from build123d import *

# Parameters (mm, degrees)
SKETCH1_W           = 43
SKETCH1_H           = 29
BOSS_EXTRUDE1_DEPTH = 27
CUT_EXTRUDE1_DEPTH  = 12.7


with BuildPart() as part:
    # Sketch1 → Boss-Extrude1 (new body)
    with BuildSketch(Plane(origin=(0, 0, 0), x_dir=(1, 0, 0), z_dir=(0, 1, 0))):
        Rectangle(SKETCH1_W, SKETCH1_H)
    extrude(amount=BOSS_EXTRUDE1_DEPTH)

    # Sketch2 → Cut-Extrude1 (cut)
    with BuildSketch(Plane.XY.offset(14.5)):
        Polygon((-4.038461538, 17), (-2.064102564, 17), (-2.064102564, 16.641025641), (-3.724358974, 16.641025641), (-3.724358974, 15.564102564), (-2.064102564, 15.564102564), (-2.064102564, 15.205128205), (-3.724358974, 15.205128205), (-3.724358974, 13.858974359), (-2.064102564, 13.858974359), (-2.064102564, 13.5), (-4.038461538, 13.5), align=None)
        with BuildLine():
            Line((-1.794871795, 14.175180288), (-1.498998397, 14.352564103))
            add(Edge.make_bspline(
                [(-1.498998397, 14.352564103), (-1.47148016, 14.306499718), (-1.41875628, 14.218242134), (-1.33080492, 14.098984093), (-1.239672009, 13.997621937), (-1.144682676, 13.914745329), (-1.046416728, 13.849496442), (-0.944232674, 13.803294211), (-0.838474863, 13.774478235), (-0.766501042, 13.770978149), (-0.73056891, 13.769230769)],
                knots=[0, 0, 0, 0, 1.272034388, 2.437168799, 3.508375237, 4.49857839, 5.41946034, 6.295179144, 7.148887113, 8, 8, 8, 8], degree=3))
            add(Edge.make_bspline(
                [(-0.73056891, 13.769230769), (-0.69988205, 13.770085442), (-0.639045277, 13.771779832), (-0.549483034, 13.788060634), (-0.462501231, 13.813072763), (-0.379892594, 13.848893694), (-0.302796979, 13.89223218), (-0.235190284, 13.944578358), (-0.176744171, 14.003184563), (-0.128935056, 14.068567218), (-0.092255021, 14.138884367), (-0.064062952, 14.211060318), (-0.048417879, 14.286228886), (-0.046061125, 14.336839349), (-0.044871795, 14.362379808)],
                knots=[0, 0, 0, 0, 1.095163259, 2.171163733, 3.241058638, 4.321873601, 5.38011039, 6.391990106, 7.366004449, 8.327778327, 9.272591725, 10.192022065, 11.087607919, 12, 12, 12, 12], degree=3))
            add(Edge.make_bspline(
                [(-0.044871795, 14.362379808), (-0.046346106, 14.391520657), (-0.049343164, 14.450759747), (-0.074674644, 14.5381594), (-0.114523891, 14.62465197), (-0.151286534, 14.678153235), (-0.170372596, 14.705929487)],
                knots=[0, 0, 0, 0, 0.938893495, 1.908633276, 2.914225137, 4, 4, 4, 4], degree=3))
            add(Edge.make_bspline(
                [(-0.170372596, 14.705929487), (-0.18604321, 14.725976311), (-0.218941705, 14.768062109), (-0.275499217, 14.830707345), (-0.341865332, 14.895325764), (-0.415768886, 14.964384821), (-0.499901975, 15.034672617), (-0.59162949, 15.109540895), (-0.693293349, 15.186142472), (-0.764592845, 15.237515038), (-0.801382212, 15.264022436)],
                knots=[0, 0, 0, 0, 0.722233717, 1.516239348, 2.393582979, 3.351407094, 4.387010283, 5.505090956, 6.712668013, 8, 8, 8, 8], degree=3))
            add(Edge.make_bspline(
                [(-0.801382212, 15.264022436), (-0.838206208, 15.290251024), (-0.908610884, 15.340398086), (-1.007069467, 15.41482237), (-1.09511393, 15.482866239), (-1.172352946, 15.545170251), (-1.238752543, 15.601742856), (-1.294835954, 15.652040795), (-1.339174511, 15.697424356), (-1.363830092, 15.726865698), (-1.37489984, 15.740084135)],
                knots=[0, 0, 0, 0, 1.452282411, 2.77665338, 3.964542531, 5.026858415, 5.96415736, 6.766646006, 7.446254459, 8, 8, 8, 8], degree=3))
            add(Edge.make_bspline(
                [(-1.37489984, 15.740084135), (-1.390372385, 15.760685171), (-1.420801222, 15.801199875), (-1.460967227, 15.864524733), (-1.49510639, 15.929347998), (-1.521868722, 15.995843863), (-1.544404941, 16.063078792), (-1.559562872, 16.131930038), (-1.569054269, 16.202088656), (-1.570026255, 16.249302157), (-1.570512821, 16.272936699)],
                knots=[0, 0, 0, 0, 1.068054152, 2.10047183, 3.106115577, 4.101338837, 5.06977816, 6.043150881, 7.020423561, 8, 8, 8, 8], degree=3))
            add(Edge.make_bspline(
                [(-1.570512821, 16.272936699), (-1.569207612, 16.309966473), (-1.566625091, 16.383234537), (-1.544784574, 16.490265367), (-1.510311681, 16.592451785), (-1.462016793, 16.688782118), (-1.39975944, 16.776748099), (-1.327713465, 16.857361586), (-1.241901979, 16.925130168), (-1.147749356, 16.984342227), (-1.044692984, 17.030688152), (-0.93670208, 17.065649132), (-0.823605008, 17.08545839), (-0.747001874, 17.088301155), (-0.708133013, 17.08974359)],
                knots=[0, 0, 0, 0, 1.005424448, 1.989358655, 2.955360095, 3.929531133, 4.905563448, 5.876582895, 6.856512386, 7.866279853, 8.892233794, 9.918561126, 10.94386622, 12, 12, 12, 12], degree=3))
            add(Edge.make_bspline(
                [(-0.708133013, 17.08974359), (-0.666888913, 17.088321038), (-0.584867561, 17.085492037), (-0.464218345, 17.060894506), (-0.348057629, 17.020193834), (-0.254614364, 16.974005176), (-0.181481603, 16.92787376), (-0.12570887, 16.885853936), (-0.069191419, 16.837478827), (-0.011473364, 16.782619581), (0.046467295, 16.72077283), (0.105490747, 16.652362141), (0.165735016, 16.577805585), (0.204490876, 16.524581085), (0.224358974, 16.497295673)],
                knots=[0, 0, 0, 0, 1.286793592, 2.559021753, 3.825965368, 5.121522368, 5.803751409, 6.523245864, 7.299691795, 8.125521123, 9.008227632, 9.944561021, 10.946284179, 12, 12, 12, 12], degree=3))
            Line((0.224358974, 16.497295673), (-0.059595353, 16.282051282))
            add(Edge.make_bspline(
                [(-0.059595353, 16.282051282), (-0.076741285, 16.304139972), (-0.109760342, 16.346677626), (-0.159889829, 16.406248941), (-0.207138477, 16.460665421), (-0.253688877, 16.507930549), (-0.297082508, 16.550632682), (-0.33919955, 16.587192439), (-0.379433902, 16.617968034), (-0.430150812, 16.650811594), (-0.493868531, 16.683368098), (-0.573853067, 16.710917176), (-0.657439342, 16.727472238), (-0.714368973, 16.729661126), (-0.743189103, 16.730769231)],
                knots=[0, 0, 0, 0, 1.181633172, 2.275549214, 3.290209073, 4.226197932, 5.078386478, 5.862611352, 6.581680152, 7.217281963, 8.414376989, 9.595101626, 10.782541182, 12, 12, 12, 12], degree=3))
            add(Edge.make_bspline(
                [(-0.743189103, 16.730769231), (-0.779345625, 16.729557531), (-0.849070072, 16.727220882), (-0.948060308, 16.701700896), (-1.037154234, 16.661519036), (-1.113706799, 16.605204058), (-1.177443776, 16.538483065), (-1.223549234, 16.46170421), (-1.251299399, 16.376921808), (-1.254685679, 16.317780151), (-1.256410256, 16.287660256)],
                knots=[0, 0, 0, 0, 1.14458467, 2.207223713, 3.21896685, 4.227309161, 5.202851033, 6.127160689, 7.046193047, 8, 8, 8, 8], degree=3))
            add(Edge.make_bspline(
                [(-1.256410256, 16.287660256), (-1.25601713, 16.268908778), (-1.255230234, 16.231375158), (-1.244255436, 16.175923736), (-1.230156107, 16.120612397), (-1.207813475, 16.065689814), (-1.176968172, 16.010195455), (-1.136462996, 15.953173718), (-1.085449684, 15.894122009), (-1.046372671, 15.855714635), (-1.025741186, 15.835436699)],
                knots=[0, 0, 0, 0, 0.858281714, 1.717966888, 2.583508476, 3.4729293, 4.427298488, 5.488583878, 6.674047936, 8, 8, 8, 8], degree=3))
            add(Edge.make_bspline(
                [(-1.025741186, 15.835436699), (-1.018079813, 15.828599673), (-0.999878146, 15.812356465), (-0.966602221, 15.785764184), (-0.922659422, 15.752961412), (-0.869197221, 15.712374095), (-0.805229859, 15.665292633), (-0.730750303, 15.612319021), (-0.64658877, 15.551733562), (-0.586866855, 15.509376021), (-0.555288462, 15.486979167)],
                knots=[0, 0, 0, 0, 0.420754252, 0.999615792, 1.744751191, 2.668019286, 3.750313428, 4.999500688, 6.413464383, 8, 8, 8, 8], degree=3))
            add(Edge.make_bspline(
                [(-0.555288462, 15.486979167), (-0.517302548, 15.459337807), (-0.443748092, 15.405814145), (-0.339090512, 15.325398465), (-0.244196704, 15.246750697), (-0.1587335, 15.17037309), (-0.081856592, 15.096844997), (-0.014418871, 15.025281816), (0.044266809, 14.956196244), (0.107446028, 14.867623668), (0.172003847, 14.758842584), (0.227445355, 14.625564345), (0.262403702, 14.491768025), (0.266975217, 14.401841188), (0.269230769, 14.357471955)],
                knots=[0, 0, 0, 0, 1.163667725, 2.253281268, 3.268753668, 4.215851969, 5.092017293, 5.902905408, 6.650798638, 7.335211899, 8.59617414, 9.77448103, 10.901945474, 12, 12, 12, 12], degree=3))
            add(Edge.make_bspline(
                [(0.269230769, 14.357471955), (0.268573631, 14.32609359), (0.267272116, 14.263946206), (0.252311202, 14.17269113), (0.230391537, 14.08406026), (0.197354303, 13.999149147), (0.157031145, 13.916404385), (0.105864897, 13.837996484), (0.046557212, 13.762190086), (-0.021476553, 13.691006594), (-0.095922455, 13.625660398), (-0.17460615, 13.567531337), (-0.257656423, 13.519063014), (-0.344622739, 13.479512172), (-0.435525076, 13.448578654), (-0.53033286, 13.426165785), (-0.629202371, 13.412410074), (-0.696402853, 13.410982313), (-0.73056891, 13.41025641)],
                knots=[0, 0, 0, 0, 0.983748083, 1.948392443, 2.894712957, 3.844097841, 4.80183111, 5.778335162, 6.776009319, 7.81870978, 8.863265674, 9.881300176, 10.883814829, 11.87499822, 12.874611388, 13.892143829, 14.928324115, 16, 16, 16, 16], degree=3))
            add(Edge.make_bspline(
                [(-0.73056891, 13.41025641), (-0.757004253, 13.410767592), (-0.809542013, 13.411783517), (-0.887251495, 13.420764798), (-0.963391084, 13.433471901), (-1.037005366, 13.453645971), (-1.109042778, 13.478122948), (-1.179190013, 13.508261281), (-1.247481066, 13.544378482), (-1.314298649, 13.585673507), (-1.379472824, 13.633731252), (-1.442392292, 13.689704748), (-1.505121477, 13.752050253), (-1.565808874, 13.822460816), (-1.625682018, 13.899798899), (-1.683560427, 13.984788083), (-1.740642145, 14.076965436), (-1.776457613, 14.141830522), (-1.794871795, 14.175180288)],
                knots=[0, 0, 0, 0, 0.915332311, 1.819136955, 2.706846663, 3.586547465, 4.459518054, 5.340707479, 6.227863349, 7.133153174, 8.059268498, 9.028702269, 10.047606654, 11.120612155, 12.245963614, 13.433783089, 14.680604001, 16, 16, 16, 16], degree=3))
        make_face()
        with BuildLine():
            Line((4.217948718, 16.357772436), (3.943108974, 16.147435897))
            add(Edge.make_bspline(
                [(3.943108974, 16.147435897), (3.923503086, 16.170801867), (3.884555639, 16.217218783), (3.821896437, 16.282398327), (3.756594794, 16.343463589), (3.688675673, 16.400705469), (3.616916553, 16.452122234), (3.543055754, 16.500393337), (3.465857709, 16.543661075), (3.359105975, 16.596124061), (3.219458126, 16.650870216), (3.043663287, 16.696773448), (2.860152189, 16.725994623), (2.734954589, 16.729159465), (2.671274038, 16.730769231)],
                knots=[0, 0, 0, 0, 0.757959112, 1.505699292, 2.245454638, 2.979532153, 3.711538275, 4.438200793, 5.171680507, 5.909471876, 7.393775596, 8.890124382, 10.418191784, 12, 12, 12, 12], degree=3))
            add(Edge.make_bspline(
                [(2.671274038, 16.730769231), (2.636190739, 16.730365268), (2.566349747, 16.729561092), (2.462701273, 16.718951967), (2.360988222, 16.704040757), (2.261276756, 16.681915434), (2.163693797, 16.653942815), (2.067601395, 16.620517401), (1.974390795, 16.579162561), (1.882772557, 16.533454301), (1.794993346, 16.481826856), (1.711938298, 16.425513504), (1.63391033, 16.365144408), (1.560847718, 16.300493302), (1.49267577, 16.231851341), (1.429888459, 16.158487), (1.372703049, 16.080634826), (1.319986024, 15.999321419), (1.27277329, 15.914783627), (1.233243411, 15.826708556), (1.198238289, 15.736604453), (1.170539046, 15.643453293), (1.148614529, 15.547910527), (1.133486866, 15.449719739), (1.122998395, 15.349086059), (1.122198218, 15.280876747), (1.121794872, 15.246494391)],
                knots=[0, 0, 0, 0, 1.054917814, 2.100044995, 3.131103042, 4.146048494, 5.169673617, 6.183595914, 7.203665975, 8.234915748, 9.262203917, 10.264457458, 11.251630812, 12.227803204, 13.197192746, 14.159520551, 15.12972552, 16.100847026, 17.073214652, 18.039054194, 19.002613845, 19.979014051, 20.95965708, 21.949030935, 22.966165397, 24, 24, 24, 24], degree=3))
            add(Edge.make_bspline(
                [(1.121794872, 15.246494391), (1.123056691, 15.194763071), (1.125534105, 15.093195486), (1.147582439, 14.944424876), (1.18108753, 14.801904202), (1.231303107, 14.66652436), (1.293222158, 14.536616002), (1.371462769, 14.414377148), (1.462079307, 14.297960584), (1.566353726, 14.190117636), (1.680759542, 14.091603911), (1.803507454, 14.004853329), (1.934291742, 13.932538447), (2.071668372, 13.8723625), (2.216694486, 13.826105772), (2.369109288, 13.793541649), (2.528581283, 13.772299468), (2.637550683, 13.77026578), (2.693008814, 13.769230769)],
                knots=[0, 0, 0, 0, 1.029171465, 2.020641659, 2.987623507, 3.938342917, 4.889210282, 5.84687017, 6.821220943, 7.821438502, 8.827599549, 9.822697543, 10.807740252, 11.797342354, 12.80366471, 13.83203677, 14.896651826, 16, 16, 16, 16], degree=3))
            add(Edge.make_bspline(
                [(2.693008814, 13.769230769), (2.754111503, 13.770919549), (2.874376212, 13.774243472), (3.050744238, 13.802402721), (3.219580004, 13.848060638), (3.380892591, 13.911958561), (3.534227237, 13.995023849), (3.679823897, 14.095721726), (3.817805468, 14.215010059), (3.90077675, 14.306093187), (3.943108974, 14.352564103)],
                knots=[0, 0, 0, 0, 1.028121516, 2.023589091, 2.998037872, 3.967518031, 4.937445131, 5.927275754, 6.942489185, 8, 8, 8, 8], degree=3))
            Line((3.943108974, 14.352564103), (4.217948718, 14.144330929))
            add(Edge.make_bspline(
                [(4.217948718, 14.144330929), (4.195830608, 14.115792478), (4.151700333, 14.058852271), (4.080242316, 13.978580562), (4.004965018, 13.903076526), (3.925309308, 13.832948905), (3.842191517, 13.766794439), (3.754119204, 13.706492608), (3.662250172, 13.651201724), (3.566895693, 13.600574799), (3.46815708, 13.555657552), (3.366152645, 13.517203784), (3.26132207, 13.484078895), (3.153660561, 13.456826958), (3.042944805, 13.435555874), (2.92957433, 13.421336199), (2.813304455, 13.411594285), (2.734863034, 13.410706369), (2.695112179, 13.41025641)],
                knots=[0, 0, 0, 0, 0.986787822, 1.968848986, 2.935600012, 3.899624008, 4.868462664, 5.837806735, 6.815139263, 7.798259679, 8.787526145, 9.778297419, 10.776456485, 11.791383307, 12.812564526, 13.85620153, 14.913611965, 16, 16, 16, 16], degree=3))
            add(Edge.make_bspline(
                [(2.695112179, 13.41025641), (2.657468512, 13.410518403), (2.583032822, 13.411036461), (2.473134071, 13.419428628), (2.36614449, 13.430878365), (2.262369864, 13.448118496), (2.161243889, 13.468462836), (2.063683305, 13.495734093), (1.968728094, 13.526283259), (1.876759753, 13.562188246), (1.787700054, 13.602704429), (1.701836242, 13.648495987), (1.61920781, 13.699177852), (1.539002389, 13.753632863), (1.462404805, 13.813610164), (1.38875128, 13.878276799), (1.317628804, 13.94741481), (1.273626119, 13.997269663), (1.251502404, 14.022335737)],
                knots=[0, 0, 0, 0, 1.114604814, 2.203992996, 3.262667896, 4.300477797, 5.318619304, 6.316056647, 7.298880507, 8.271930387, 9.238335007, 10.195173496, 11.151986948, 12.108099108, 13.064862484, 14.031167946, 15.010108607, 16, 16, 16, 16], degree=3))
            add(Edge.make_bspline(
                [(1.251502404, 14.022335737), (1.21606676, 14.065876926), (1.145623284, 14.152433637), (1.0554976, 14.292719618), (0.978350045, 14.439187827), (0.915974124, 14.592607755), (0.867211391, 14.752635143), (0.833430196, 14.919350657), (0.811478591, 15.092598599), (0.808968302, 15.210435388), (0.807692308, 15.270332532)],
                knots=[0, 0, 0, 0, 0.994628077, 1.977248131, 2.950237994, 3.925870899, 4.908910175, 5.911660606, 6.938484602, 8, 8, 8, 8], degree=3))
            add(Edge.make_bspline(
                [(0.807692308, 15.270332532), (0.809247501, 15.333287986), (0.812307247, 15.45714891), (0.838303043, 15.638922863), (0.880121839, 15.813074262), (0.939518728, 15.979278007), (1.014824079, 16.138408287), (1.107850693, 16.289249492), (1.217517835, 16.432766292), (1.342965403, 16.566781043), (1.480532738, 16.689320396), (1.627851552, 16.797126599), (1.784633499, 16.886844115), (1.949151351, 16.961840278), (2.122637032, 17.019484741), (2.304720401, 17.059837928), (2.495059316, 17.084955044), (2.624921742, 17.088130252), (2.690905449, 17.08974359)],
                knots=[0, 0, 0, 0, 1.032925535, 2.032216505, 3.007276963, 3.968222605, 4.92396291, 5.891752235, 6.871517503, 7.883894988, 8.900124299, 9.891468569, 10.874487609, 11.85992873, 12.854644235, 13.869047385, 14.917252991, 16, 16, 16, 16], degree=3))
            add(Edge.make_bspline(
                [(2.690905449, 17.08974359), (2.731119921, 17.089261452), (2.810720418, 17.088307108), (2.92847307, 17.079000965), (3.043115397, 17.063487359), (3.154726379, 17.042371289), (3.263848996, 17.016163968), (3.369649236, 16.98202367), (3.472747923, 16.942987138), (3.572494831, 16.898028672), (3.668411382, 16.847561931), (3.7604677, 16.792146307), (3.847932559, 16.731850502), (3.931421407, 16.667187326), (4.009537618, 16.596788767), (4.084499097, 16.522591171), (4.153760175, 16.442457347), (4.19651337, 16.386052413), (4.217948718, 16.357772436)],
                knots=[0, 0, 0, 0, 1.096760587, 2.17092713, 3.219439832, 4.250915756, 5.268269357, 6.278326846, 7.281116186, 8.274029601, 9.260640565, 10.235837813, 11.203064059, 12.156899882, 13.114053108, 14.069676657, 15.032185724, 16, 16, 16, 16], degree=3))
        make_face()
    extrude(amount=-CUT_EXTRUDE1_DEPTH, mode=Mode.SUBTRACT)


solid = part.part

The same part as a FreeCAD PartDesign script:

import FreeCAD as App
import Part
import Sketcher
from FreeCAD import Vector
Q = App.Units.Quantity


def add_polygon(sketch, points):
    """Adds a closed chain of lines whose ends are joined by coincident constraints."""
    first, n = sketch.GeometryCount, len(points)
    for a, b in zip(points, points[1:] + points[:1]):
        sketch.addGeometry(Part.LineSegment(App.Vector(*a, 0), App.Vector(*b, 0)), False)
    for i in range(n):
        sketch.addConstraint(Sketcher.Constraint("Coincident", first + i, 2, first + (i + 1) % n, 1))

doc = App.newDocument("Part")
body = doc.addObject("PartDesign::Body", "Body")

# Sketch on XZ plane
sketch1 = body.newObject("Sketcher::SketchObject", "Sketch")
sketch1.AttachmentSupport = (doc.getObject("XZ_Plane"), [""])
sketch1.MapMode = "FlatFace"
add_polygon(sketch1, [(-21.5, -14.5), (-21.5, 14.5), (21.5, 14.5), (21.5, -14.5)])  # lines 0-3
sketch1.addConstraint(Sketcher.Constraint("Vertical", 0))
sketch1.addConstraint(Sketcher.Constraint("Horizontal", 1))
sketch1.addConstraint(Sketcher.Constraint("Vertical", 2))
sketch1.addConstraint(Sketcher.Constraint("Horizontal", 3))
sketch1.addConstraint(Sketcher.Constraint("Symmetric", 0, 2, 2, 2, -1, 1))
sketch1.addConstraint(Sketcher.Constraint("DistanceX", 1, 1, 1, 2, Q("43 mm")))
sketch1.addConstraint(Sketcher.Constraint("DistanceY", 0, 1, 0, 2, Q("29 mm")))
pad1 = body.newObject("PartDesign::Pad", "Pad")
pad1.Profile = sketch1
pad1.Length = 27
pad1.Reversed = True

# Sketch on XY plane
sketch2 = body.newObject("Sketcher::SketchObject", "Sketch001")
sketch2.AttachmentSupport = (doc.getObject("XY_Plane"), [""])
sketch2.MapMode = "FlatFace"
sketch2.AttachmentOffset = App.Placement(Vector(0, 0, 14.5), App.Rotation())
add_polygon(sketch2, [(-2.064103, 17), (-4.038462, 17), (-4.038462, 13.5), (-2.064103, 13.5), (-2.064103, 13.858974), (-3.724359, 13.858974), (-3.724359, 15.205128), (-2.064103, 15.205128), (-2.064103, 15.564103), (-3.724359, 15.564103), (-3.724359, 16.641026), (-2.064103, 16.641026)])  # lines 0-11
sketch2.addGeometry(Part.LineSegment(Vector(-1.498998, 14.352564, 0), Vector(-1.794872, 14.17518, 0)), False)  # 12
sketch2.addGeometry(Part.BSplineCurve([Vector(-0.730569, 13.410256, 0), Vector(-0.757004, 13.410768, 0), Vector(-0.809542, 13.411784, 0), Vector(-0.887251, 13.420765, 0), Vector(-0.963391, 13.433472, 0), Vector(-1.037005, 13.453646, 0), Vector(-1.109043, 13.478123, 0), Vector(-1.17919, 13.508261, 0), Vector(-1.247481, 13.544378, 0), Vector(-1.314299, 13.585674, 0), Vector(-1.379473, 13.633731, 0), Vector(-1.442392, 13.689705, 0), Vector(-1.505121, 13.75205, 0), Vector(-1.565809, 13.822461, 0), Vector(-1.625682, 13.899799, 0), Vector(-1.68356, 13.984788, 0), Vector(-1.740642, 14.076965, 0), Vector(-1.776458, 14.141831, 0), Vector(-1.794872, 14.17518, 0)], [4, 1, 1, 1, 1, 1, 1, 1, 1, 1, 1, 1, 1, 1, 1, 1, 4], [0, 0.915332311, 1.819136955, 2.706846663, 3.586547465, 4.459518054, 5.340707479, 6.227863349, 7.133153174, 8.059268498, 9.028702269, 10.047606654, 11.120612155, 12.245963614, 13.433783089, 14.680604001, 16], False, 3, [1, 1, 1, 1, 1, 1, 1, 1, 1, 1, 1, 1, 1, 1, 1, 1, 1, 1, 1], False), False)  # 13
sketch2.addGeometry(Part.BSplineCurve([Vector(0.269231, 14.357472, 0), Vector(0.268574, 14.326094, 0), Vector(0.267272, 14.263946, 0), Vector(0.252311, 14.172691, 0), Vector(0.230392, 14.08406, 0), Vector(0.197354, 13.999149, 0), Vector(0.157031, 13.916404, 0), Vector(0.105865, 13.837996, 0), Vector(0.046557, 13.76219, 0), Vector(-0.021477, 13.691007, 0), Vector(-0.095922, 13.62566, 0), Vector(-0.174606, 13.567531, 0), Vector(-0.257656, 13.519063, 0), Vector(-0.344623, 13.479512, 0), Vector(-0.435525, 13.448579, 0), Vector(-0.530333, 13.426166, 0), Vector(-0.629202, 13.41241, 0), Vector(-0.696403, 13.410982, 0), Vector(-0.730569, 13.410256, 0)], [4, 1, 1, 1, 1, 1, 1, 1, 1, 1, 1, 1, 1, 1, 1, 1, 4], [0, 0.983748083, 1.948392443, 2.894712957, 3.844097841, 4.80183111, 5.778335162, 6.776009319, 7.81870978, 8.863265674, 9.881300176, 10.883814829, 11.87499822, 12.874611388, 13.892143829, 14.928324115, 16], False, 3, [1, 1, 1, 1, 1, 1, 1, 1, 1, 1, 1, 1, 1, 1, 1, 1, 1, 1, 1], False), False)  # 14
sketch2.addGeometry(Part.BSplineCurve([Vector(-0.555288, 15.486979, 0), Vector(-0.517303, 15.459338, 0), Vector(-0.443748, 15.405814, 0), Vector(-0.339091, 15.325398, 0), Vector(-0.244197, 15.246751, 0), Vector(-0.158733, 15.170373, 0), Vector(-0.081857, 15.096845, 0), Vector(-0.014419, 15.025282, 0), Vector(0.044267, 14.956196, 0), Vector(0.107446, 14.867624, 0), Vector(0.172004, 14.758843, 0), Vector(0.227445, 14.625564, 0), Vector(0.262404, 14.491768, 0), Vector(0.266975, 14.401841, 0), Vector(0.269231, 14.357472, 0)], [4, 1, 1, 1, 1, 1, 1, 1, 1, 1, 1, 1, 4], [0, 1.163667725, 2.253281268, 3.268753668, 4.215851969, 5.092017293, 5.902905408, 6.650798638, 7.335211899, 8.59617414, 9.77448103, 10.901945474, 12], False, 3, [1, 1, 1, 1, 1, 1, 1, 1, 1, 1, 1, 1, 1, 1, 1], False), False)  # 15
sketch2.addGeometry(Part.BSplineCurve([Vector(-1.025741, 15.835437, 0), Vector(-1.01808, 15.8286, 0), Vector(-0.999878, 15.812356, 0), Vector(-0.966602, 15.785764, 0), Vector(-0.922659, 15.752961, 0), Vector(-0.869197, 15.712374, 0), Vector(-0.80523, 15.665293, 0), Vector(-0.73075, 15.612319, 0), Vector(-0.646589, 15.551734, 0), Vector(-0.586867, 15.509376, 0), Vector(-0.555288, 15.486979, 0)], [4, 1, 1, 1, 1, 1, 1, 1, 4], [0, 0.420754252, 0.999615792, 1.744751191, 2.668019286, 3.750313428, 4.999500688, 6.413464383, 8], False, 3, [1, 1, 1, 1, 1, 1, 1, 1, 1, 1, 1], False), False)  # 16
sketch2.addGeometry(Part.BSplineCurve([Vector(-1.25641, 16.28766, 0), Vector(-1.256017, 16.268909, 0), Vector(-1.25523, 16.231375, 0), Vector(-1.244255, 16.175924, 0), Vector(-1.230156, 16.120612, 0), Vector(-1.207813, 16.06569, 0), Vector(-1.176968, 16.010195, 0), Vector(-1.136463, 15.953174, 0), Vector(-1.08545, 15.894122, 0), Vector(-1.046373, 15.855715, 0), Vector(-1.025741, 15.835437, 0)], [4, 1, 1, 1, 1, 1, 1, 1, 4], [0, 0.858281714, 1.717966888, 2.583508476, 3.4729293, 4.427298488, 5.488583878, 6.674047936, 8], False, 3, [1, 1, 1, 1, 1, 1, 1, 1, 1, 1, 1], False), False)  # 17
sketch2.addGeometry(Part.BSplineCurve([Vector(-0.743189, 16.730769, 0), Vector(-0.779346, 16.729558, 0), Vector(-0.84907, 16.727221, 0), Vector(-0.94806, 16.701701, 0), Vector(-1.037154, 16.661519, 0), Vector(-1.113707, 16.605204, 0), Vector(-1.177444, 16.538483, 0), Vector(-1.223549, 16.461704, 0), Vector(-1.251299, 16.376922, 0), Vector(-1.254686, 16.31778, 0), Vector(-1.25641, 16.28766, 0)], [4, 1, 1, 1, 1, 1, 1, 1, 4], [0, 1.14458467, 2.207223713, 3.21896685, 4.227309161, 5.202851033, 6.127160689, 7.046193047, 8], False, 3, [1, 1, 1, 1, 1, 1, 1, 1, 1, 1, 1], False), False)  # 18
sketch2.addGeometry(Part.BSplineCurve([Vector(-0.059595, 16.282051, 0), Vector(-0.076741, 16.30414, 0), Vector(-0.10976, 16.346678, 0), Vector(-0.15989, 16.406249, 0), Vector(-0.207138, 16.460665, 0), Vector(-0.253689, 16.507931, 0), Vector(-0.297083, 16.550633, 0), Vector(-0.3392, 16.587192, 0), Vector(-0.379434, 16.617968, 0), Vector(-0.430151, 16.650812, 0), Vector(-0.493869, 16.683368, 0), Vector(-0.573853, 16.710917, 0), Vector(-0.657439, 16.727472, 0), Vector(-0.714369, 16.729661, 0), Vector(-0.743189, 16.730769, 0)], [4, 1, 1, 1, 1, 1, 1, 1, 1, 1, 1, 1, 4], [0, 1.181633172, 2.275549214, 3.290209073, 4.226197932, 5.078386478, 5.862611352, 6.581680152, 7.217281963, 8.414376989, 9.595101626, 10.782541182, 12], False, 3, [1, 1, 1, 1, 1, 1, 1, 1, 1, 1, 1, 1, 1, 1, 1], False), False)  # 19
sketch2.addGeometry(Part.LineSegment(Vector(-0.059595, 16.282051, 0), Vector(0.224359, 16.497296, 0)), False)  # 20
sketch2.addGeometry(Part.BSplineCurve([Vector(-0.708133, 17.089744, 0), Vector(-0.666889, 17.088321, 0), Vector(-0.584868, 17.085492, 0), Vector(-0.464218, 17.060895, 0), Vector(-0.348058, 17.020194, 0), Vector(-0.254614, 16.974005, 0), Vector(-0.181482, 16.927874, 0), Vector(-0.125709, 16.885854, 0), Vector(-0.069191, 16.837479, 0), Vector(-0.011473, 16.78262, 0), Vector(0.046467, 16.720773, 0), Vector(0.105491, 16.652362, 0), Vector(0.165735, 16.577806, 0), Vector(0.204491, 16.524581, 0), Vector(0.224359, 16.497296, 0)], [4, 1, 1, 1, 1, 1, 1, 1, 1, 1, 1, 1, 4], [0, 1.286793592, 2.559021753, 3.825965368, 5.121522368, 5.803751409, 6.523245864, 7.299691795, 8.125521123, 9.008227632, 9.944561021, 10.946284179, 12], False, 3, [1, 1, 1, 1, 1, 1, 1, 1, 1, 1, 1, 1, 1, 1, 1], False), False)  # 21
sketch2.addGeometry(Part.BSplineCurve([Vector(-1.570513, 16.272937, 0), Vector(-1.569208, 16.309966, 0), Vector(-1.566625, 16.383235, 0), Vector(-1.544785, 16.490265, 0), Vector(-1.510312, 16.592452, 0), Vector(-1.462017, 16.688782, 0), Vector(-1.399759, 16.776748, 0), Vector(-1.327713, 16.857362, 0), Vector(-1.241902, 16.92513, 0), Vector(-1.147749, 16.984342, 0), Vector(-1.044693, 17.030688, 0), Vector(-0.936702, 17.065649, 0), Vector(-0.823605, 17.085458, 0), Vector(-0.747002, 17.088301, 0), Vector(-0.708133, 17.089744, 0)], [4, 1, 1, 1, 1, 1, 1, 1, 1, 1, 1, 1, 4], [0, 1.005424448, 1.989358655, 2.955360095, 3.929531133, 4.905563448, 5.876582895, 6.856512386, 7.866279853, 8.892233794, 9.918561126, 10.94386622, 12], False, 3, [1, 1, 1, 1, 1, 1, 1, 1, 1, 1, 1, 1, 1, 1, 1], False), False)  # 22
sketch2.addGeometry(Part.BSplineCurve([Vector(-1.3749, 15.740084, 0), Vector(-1.390372, 15.760685, 0), Vector(-1.420801, 15.8012, 0), Vector(-1.460967, 15.864525, 0), Vector(-1.495106, 15.929348, 0), Vector(-1.521869, 15.995844, 0), Vector(-1.544405, 16.063079, 0), Vector(-1.559563, 16.13193, 0), Vector(-1.569054, 16.202089, 0), Vector(-1.570026, 16.249302, 0), Vector(-1.570513, 16.272937, 0)], [4, 1, 1, 1, 1, 1, 1, 1, 4], [0, 1.068054152, 2.10047183, 3.106115577, 4.101338837, 5.06977816, 6.043150881, 7.020423561, 8], False, 3, [1, 1, 1, 1, 1, 1, 1, 1, 1, 1, 1], False), False)  # 23
sketch2.addGeometry(Part.BSplineCurve([Vector(-0.801382, 15.264022, 0), Vector(-0.838206, 15.290251, 0), Vector(-0.908611, 15.340398, 0), Vector(-1.007069, 15.414822, 0), Vector(-1.095114, 15.482866, 0), Vector(-1.172353, 15.54517, 0), Vector(-1.238753, 15.601743, 0), Vector(-1.294836, 15.652041, 0), Vector(-1.339175, 15.697424, 0), Vector(-1.36383, 15.726866, 0), Vector(-1.3749, 15.740084, 0)], [4, 1, 1, 1, 1, 1, 1, 1, 4], [0, 1.452282411, 2.77665338, 3.964542531, 5.026858415, 5.96415736, 6.766646006, 7.446254459, 8], False, 3, [1, 1, 1, 1, 1, 1, 1, 1, 1, 1, 1], False), False)  # 24
sketch2.addGeometry(Part.BSplineCurve([Vector(-0.170373, 14.705929, 0), Vector(-0.186043, 14.725976, 0), Vector(-0.218942, 14.768062, 0), Vector(-0.275499, 14.830707, 0), Vector(-0.341865, 14.895326, 0), Vector(-0.415769, 14.964385, 0), Vector(-0.499902, 15.034673, 0), Vector(-0.591629, 15.109541, 0), Vector(-0.693293, 15.186142, 0), Vector(-0.764593, 15.237515, 0), Vector(-0.801382, 15.264022, 0)], [4, 1, 1, 1, 1, 1, 1, 1, 4], [0, 0.722233717, 1.516239348, 2.393582979, 3.351407094, 4.387010283, 5.505090956, 6.712668013, 8], False, 3, [1, 1, 1, 1, 1, 1, 1, 1, 1, 1, 1], False), False)  # 25
sketch2.addGeometry(Part.BSplineCurve([Vector(-0.044872, 14.36238, 0), Vector(-0.046346, 14.391521, 0), Vector(-0.049343, 14.45076, 0), Vector(-0.074675, 14.538159, 0), Vector(-0.114524, 14.624652, 0), Vector(-0.151287, 14.678153, 0), Vector(-0.170373, 14.705929, 0)], [4, 1, 1, 1, 4], [0, 0.938893495, 1.908633276, 2.914225137, 4], False, 3, [1, 1, 1, 1, 1, 1, 1], False), False)  # 26
sketch2.addGeometry(Part.BSplineCurve([Vector(-0.730569, 13.769231, 0), Vector(-0.699882, 13.770085, 0), Vector(-0.639045, 13.77178, 0), Vector(-0.549483, 13.788061, 0), Vector(-0.462501, 13.813073, 0), Vector(-0.379893, 13.848894, 0), Vector(-0.302797, 13.892232, 0), Vector(-0.23519, 13.944578, 0), Vector(-0.176744, 14.003185, 0), Vector(-0.128935, 14.068567, 0), Vector(-0.092255, 14.138884, 0), Vector(-0.064063, 14.21106, 0), Vector(-0.048418, 14.286229, 0), Vector(-0.046061, 14.336839, 0), Vector(-0.044872, 14.36238, 0)], [4, 1, 1, 1, 1, 1, 1, 1, 1, 1, 1, 1, 4], [0, 1.095163259, 2.171163733, 3.241058638, 4.321873601, 5.38011039, 6.391990106, 7.366004449, 8.327778327, 9.272591725, 10.192022065, 11.087607919, 12], False, 3, [1, 1, 1, 1, 1, 1, 1, 1, 1, 1, 1, 1, 1, 1, 1], False), False)  # 27
sketch2.addGeometry(Part.BSplineCurve([Vector(-1.498998, 14.352564, 0), Vector(-1.47148, 14.3065, 0), Vector(-1.418756, 14.218242, 0), Vector(-1.330805, 14.098984, 0), Vector(-1.239672, 13.997622, 0), Vector(-1.144683, 13.914745, 0), Vector(-1.046417, 13.849496, 0), Vector(-0.944233, 13.803294, 0), Vector(-0.838475, 13.774478, 0), Vector(-0.766501, 13.770978, 0), Vector(-0.730569, 13.769231, 0)], [4, 1, 1, 1, 1, 1, 1, 1, 4], [0, 1.272034388, 2.437168799, 3.508375237, 4.49857839, 5.41946034, 6.295179144, 7.148887113, 8], False, 3, [1, 1, 1, 1, 1, 1, 1, 1, 1, 1, 1], False), False)  # 28
sketch2.addGeometry(Part.LineSegment(Vector(3.943109, 16.147436, 0), Vector(4.217949, 16.357772, 0)), False)  # 29
sketch2.addGeometry(Part.BSplineCurve([Vector(2.690905, 17.089744, 0), Vector(2.73112, 17.089261, 0), Vector(2.81072, 17.088307, 0), Vector(2.928473, 17.079001, 0), Vector(3.043115, 17.063487, 0), Vector(3.154726, 17.042371, 0), Vector(3.263849, 17.016164, 0), Vector(3.369649, 16.982024, 0), Vector(3.472748, 16.942987, 0), Vector(3.572495, 16.898029, 0), Vector(3.668411, 16.847562, 0), Vector(3.760468, 16.792146, 0), Vector(3.847933, 16.731851, 0), Vector(3.931421, 16.667187, 0), Vector(4.009538, 16.596789, 0), Vector(4.084499, 16.522591, 0), Vector(4.15376, 16.442457, 0), Vector(4.196513, 16.386052, 0), Vector(4.217949, 16.357772, 0)], [4, 1, 1, 1, 1, 1, 1, 1, 1, 1, 1, 1, 1, 1, 1, 1, 4], [0, 1.096760587, 2.17092713, 3.219439832, 4.250915756, 5.268269357, 6.278326846, 7.281116186, 8.274029601, 9.260640565, 10.235837813, 11.203064059, 12.156899882, 13.114053108, 14.069676657, 15.032185724, 16], False, 3, [1, 1, 1, 1, 1, 1, 1, 1, 1, 1, 1, 1, 1, 1, 1, 1, 1, 1, 1], False), False)  # 30
sketch2.addGeometry(Part.BSplineCurve([Vector(0.807692, 15.270333, 0), Vector(0.809248, 15.333288, 0), Vector(0.812307, 15.457149, 0), Vector(0.838303, 15.638923, 0), Vector(0.880122, 15.813074, 0), Vector(0.939519, 15.979278, 0), Vector(1.014824, 16.138408, 0), Vector(1.107851, 16.289249, 0), Vector(1.217518, 16.432766, 0), Vector(1.342965, 16.566781, 0), Vector(1.480533, 16.68932, 0), Vector(1.627852, 16.797127, 0), Vector(1.784633, 16.886844, 0), Vector(1.949151, 16.96184, 0), Vector(2.122637, 17.019485, 0), Vector(2.30472, 17.059838, 0), Vector(2.495059, 17.084955, 0), Vector(2.624922, 17.08813, 0), Vector(2.690905, 17.089744, 0)], [4, 1, 1, 1, 1, 1, 1, 1, 1, 1, 1, 1, 1, 1, 1, 1, 4], [0, 1.032925535, 2.032216505, 3.007276963, 3.968222605, 4.92396291, 5.891752235, 6.871517503, 7.883894988, 8.900124299, 9.891468569, 10.874487609, 11.85992873, 12.854644235, 13.869047385, 14.917252991, 16], False, 3, [1, 1, 1, 1, 1, 1, 1, 1, 1, 1, 1, 1, 1, 1, 1, 1, 1, 1, 1], False), False)  # 31
sketch2.addGeometry(Part.BSplineCurve([Vector(1.251502, 14.022336, 0), Vector(1.216067, 14.065877, 0), Vector(1.145623, 14.152434, 0), Vector(1.055498, 14.29272, 0), Vector(0.97835, 14.439188, 0), Vector(0.915974, 14.592608, 0), Vector(0.867211, 14.752635, 0), Vector(0.83343, 14.919351, 0), Vector(0.811479, 15.092599, 0), Vector(0.808968, 15.210435, 0), Vector(0.807692, 15.270333, 0)], [4, 1, 1, 1, 1, 1, 1, 1, 4], [0, 0.994628077, 1.977248131, 2.950237994, 3.925870899, 4.908910175, 5.911660606, 6.938484602, 8], False, 3, [1, 1, 1, 1, 1, 1, 1, 1, 1, 1, 1], False), False)  # 32
sketch2.addGeometry(Part.BSplineCurve([Vector(2.695112, 13.410256, 0), Vector(2.657469, 13.410518, 0), Vector(2.583033, 13.411036, 0), Vector(2.473134, 13.419429, 0), Vector(2.366144, 13.430878, 0), Vector(2.26237, 13.448118, 0), Vector(2.161244, 13.468463, 0), Vector(2.063683, 13.495734, 0), Vector(1.968728, 13.526283, 0), Vector(1.87676, 13.562188, 0), Vector(1.7877, 13.602704, 0), Vector(1.701836, 13.648496, 0), Vector(1.619208, 13.699178, 0), Vector(1.539002, 13.753633, 0), Vector(1.462405, 13.81361, 0), Vector(1.388751, 13.878277, 0), Vector(1.317629, 13.947415, 0), Vector(1.273626, 13.99727, 0), Vector(1.251502, 14.022336, 0)], [4, 1, 1, 1, 1, 1, 1, 1, 1, 1, 1, 1, 1, 1, 1, 1, 4], [0, 1.114604814, 2.203992996, 3.262667896, 4.300477797, 5.318619304, 6.316056647, 7.298880507, 8.271930387, 9.238335007, 10.195173496, 11.151986948, 12.108099108, 13.064862484, 14.031167946, 15.010108607, 16], False, 3, [1, 1, 1, 1, 1, 1, 1, 1, 1, 1, 1, 1, 1, 1, 1, 1, 1, 1, 1], False), False)  # 33
sketch2.addGeometry(Part.BSplineCurve([Vector(4.217949, 14.144331, 0), Vector(4.195831, 14.115792, 0), Vector(4.1517, 14.058852, 0), Vector(4.080242, 13.978581, 0), Vector(4.004965, 13.903077, 0), Vector(3.925309, 13.832949, 0), Vector(3.842192, 13.766794, 0), Vector(3.754119, 13.706493, 0), Vector(3.66225, 13.651202, 0), Vector(3.566896, 13.600575, 0), Vector(3.468157, 13.555658, 0), Vector(3.366153, 13.517204, 0), Vector(3.261322, 13.484079, 0), Vector(3.153661, 13.456827, 0), Vector(3.042945, 13.435556, 0), Vector(2.929574, 13.421336, 0), Vector(2.813304, 13.411594, 0), Vector(2.734863, 13.410706, 0), Vector(2.695112, 13.410256, 0)], [4, 1, 1, 1, 1, 1, 1, 1, 1, 1, 1, 1, 1, 1, 1, 1, 4], [0, 0.986787822, 1.968848986, 2.935600012, 3.899624008, 4.868462664, 5.837806735, 6.815139263, 7.798259679, 8.787526145, 9.778297419, 10.776456485, 11.791383307, 12.812564526, 13.85620153, 14.913611965, 16], False, 3, [1, 1, 1, 1, 1, 1, 1, 1, 1, 1, 1, 1, 1, 1, 1, 1, 1, 1, 1], False), False)  # 34
sketch2.addGeometry(Part.LineSegment(Vector(4.217949, 14.144331, 0), Vector(3.943109, 14.352564, 0)), False)  # 35
sketch2.addGeometry(Part.BSplineCurve([Vector(2.693009, 13.769231, 0), Vector(2.754112, 13.77092, 0), Vector(2.874376, 13.774243, 0), Vector(3.050744, 13.802403, 0), Vector(3.21958, 13.848061, 0), Vector(3.380893, 13.911959, 0), Vector(3.534227, 13.995024, 0), Vector(3.679824, 14.095722, 0), Vector(3.817805, 14.21501, 0), Vector(3.900777, 14.306093, 0), Vector(3.943109, 14.352564, 0)], [4, 1, 1, 1, 1, 1, 1, 1, 4], [0, 1.028121516, 2.023589091, 2.998037872, 3.967518031, 4.937445131, 5.927275754, 6.942489185, 8], False, 3, [1, 1, 1, 1, 1, 1, 1, 1, 1, 1, 1], False), False)  # 36
sketch2.addGeometry(Part.BSplineCurve([Vector(1.121795, 15.246494, 0), Vector(1.123057, 15.194763, 0), Vector(1.125534, 15.093195, 0), Vector(1.147582, 14.944425, 0), Vector(1.181088, 14.801904, 0), Vector(1.231303, 14.666524, 0), Vector(1.293222, 14.536616, 0), Vector(1.371463, 14.414377, 0), Vector(1.462079, 14.297961, 0), Vector(1.566354, 14.190118, 0), Vector(1.68076, 14.091604, 0), Vector(1.803507, 14.004853, 0), Vector(1.934292, 13.932538, 0), Vector(2.071668, 13.872362, 0), Vector(2.216694, 13.826106, 0), Vector(2.369109, 13.793542, 0), Vector(2.528581, 13.772299, 0), Vector(2.637551, 13.770266, 0), Vector(2.693009, 13.769231, 0)], [4, 1, 1, 1, 1, 1, 1, 1, 1, 1, 1, 1, 1, 1, 1, 1, 4], [0, 1.029171465, 2.020641659, 2.987623507, 3.938342917, 4.889210282, 5.84687017, 6.821220943, 7.821438502, 8.827599549, 9.822697543, 10.807740252, 11.797342354, 12.80366471, 13.83203677, 14.896651826, 16], False, 3, [1, 1, 1, 1, 1, 1, 1, 1, 1, 1, 1, 1, 1, 1, 1, 1, 1, 1, 1], False), False)  # 37
sketch2.addGeometry(Part.BSplineCurve([Vector(2.671274, 16.730769, 0), Vector(2.636191, 16.730365, 0), Vector(2.56635, 16.729561, 0), Vector(2.462701, 16.718952, 0), Vector(2.360988, 16.704041, 0), Vector(2.261277, 16.681915, 0), Vector(2.163694, 16.653943, 0), Vector(2.067601, 16.620517, 0), Vector(1.974391, 16.579163, 0), Vector(1.882773, 16.533454, 0), Vector(1.794993, 16.481827, 0), Vector(1.711938, 16.425514, 0), Vector(1.63391, 16.365144, 0), Vector(1.560848, 16.300493, 0), Vector(1.492676, 16.231851, 0), Vector(1.429888, 16.158487, 0), Vector(1.372703, 16.080635, 0), Vector(1.319986, 15.999321, 0), Vector(1.272773, 15.914784, 0), Vector(1.233243, 15.826709, 0), Vector(1.198238, 15.736604, 0), Vector(1.170539, 15.643453, 0), Vector(1.148615, 15.547911, 0), Vector(1.133487, 15.44972, 0), Vector(1.122998, 15.349086, 0), Vector(1.122198, 15.280877, 0), Vector(1.121795, 15.246494, 0)], [4, 1, 1, 1, 1, 1, 1, 1, 1, 1, 1, 1, 1, 1, 1, 1, 1, 1, 1, 1, 1, 1, 1, 1, 4], [0, 1.054917814, 2.100044995, 3.131103042, 4.146048494, 5.169673617, 6.183595914, 7.203665975, 8.234915748, 9.262203917, 10.264457458, 11.251630812, 12.227803204, 13.197192746, 14.159520551, 15.12972552, 16.100847026, 17.073214652, 18.039054194, 19.002613845, 19.979014051, 20.95965708, 21.949030935, 22.966165397, 24], False, 3, [1, 1, 1, 1, 1, 1, 1, 1, 1, 1, 1, 1, 1, 1, 1, 1, 1, 1, 1, 1, 1, 1, 1, 1, 1, 1, 1], False), False)  # 38
sketch2.addGeometry(Part.BSplineCurve([Vector(3.943109, 16.147436, 0), Vector(3.923503, 16.170802, 0), Vector(3.884556, 16.217219, 0), Vector(3.821896, 16.282398, 0), Vector(3.756595, 16.343464, 0), Vector(3.688676, 16.400705, 0), Vector(3.616917, 16.452122, 0), Vector(3.543056, 16.500393, 0), Vector(3.465858, 16.543661, 0), Vector(3.359106, 16.596124, 0), Vector(3.219458, 16.65087, 0), Vector(3.043663, 16.696773, 0), Vector(2.860152, 16.725995, 0), Vector(2.734955, 16.729159, 0), Vector(2.671274, 16.730769, 0)], [4, 1, 1, 1, 1, 1, 1, 1, 1, 1, 1, 1, 4], [0, 0.757959112, 1.505699292, 2.245454638, 2.979532153, 3.711538275, 4.438200793, 5.171680507, 5.909471876, 7.393775596, 8.890124382, 10.418191784, 12], False, 3, [1, 1, 1, 1, 1, 1, 1, 1, 1, 1, 1, 1, 1, 1, 1], False), False)  # 39
sketch2.addConstraint(Sketcher.Constraint("Block", 13))
sketch2.addConstraint(Sketcher.Constraint("Block", 14))
sketch2.addConstraint(Sketcher.Constraint("Block", 15))
sketch2.addConstraint(Sketcher.Constraint("Block", 16))
sketch2.addConstraint(Sketcher.Constraint("Block", 17))
sketch2.addConstraint(Sketcher.Constraint("Block", 18))
sketch2.addConstraint(Sketcher.Constraint("Block", 19))
sketch2.addConstraint(Sketcher.Constraint("Block", 21))
sketch2.addConstraint(Sketcher.Constraint("Block", 22))
sketch2.addConstraint(Sketcher.Constraint("Block", 23))
sketch2.addConstraint(Sketcher.Constraint("Block", 24))
sketch2.addConstraint(Sketcher.Constraint("Block", 25))
sketch2.addConstraint(Sketcher.Constraint("Block", 26))
sketch2.addConstraint(Sketcher.Constraint("Block", 27))
sketch2.addConstraint(Sketcher.Constraint("Block", 28))
sketch2.addConstraint(Sketcher.Constraint("Block", 30))
sketch2.addConstraint(Sketcher.Constraint("Block", 31))
sketch2.addConstraint(Sketcher.Constraint("Block", 32))
sketch2.addConstraint(Sketcher.Constraint("Block", 33))
sketch2.addConstraint(Sketcher.Constraint("Block", 34))
sketch2.addConstraint(Sketcher.Constraint("Block", 36))
sketch2.addConstraint(Sketcher.Constraint("Block", 37))
sketch2.addConstraint(Sketcher.Constraint("Block", 38))
sketch2.addConstraint(Sketcher.Constraint("Block", 39))
sketch2.addConstraint(Sketcher.Constraint("Coincident", 12, 2, 13, 2))
sketch2.addConstraint(Sketcher.Constraint("Coincident", 19, 1, 20, 1))
sketch2.addConstraint(Sketcher.Constraint("Coincident", 20, 2, 21, 2))
sketch2.addConstraint(Sketcher.Constraint("Coincident", 28, 1, 12, 1))
sketch2.addConstraint(Sketcher.Constraint("Coincident", 29, 2, 30, 2))
sketch2.addConstraint(Sketcher.Constraint("Coincident", 34, 1, 35, 1))
sketch2.addConstraint(Sketcher.Constraint("Coincident", 35, 2, 36, 2))
sketch2.addConstraint(Sketcher.Constraint("Coincident", 39, 1, 29, 1))
sketch2.addConstraint(Sketcher.Constraint("Horizontal", 0))
sketch2.addConstraint(Sketcher.Constraint("Vertical", 1))
sketch2.addConstraint(Sketcher.Constraint("Horizontal", 2))
sketch2.addConstraint(Sketcher.Constraint("Vertical", 3))
sketch2.addConstraint(Sketcher.Constraint("Horizontal", 4))
sketch2.addConstraint(Sketcher.Constraint("Vertical", 5))
sketch2.addConstraint(Sketcher.Constraint("Horizontal", 6))
sketch2.addConstraint(Sketcher.Constraint("Vertical", 7))
sketch2.addConstraint(Sketcher.Constraint("Horizontal", 8))
sketch2.addConstraint(Sketcher.Constraint("Vertical", 9))
sketch2.addConstraint(Sketcher.Constraint("Horizontal", 10))
sketch2.addConstraint(Sketcher.Constraint("Vertical", 11))
sketch2.addConstraint(Sketcher.Constraint("Vertical", 3, 2, 6, 2))
sketch2.addConstraint(Sketcher.Constraint("Vertical", 5, 2, 8, 2))
sketch2.addConstraint(Sketcher.Constraint("Vertical", 7, 2, 10, 2))
sketch2.addConstraint(Sketcher.Constraint("Equal", 3, 7))
sketch2.addConstraint(Sketcher.Constraint("Equal", 7, 11))
sketch2.addConstraint(Sketcher.Constraint("DistanceY", 1, 2, 1, 1, Q("3.5 mm")))
sketch2.addConstraint(Sketcher.Constraint("DistanceY", -1, 1, 0, 2, Q("17 mm")))
sketch2.addConstraint(Sketcher.Constraint("DistanceX", 0, 2, 0, 1, Q("1.974359 mm")))
sketch2.addConstraint(Sketcher.Constraint("DistanceX", 4, 2, 4, 1, Q("1.660256 mm")))
sketch2.addConstraint(Sketcher.Constraint("DistanceY", 3, 1, 3, 2, Q("0.358974 mm")))
sketch2.addConstraint(Sketcher.Constraint("DistanceY", 5, 1, 5, 2, Q("1.346154 mm")))
sketch2.addConstraint(Sketcher.Constraint("DistanceX", 0, 2, -1, 1, Q("4.038462 mm")))
pocket1 = body.newObject("PartDesign::Pocket", "Pocket")
pocket1.Profile = sketch2
pocket1.Length = 12.7

doc.recompute()
